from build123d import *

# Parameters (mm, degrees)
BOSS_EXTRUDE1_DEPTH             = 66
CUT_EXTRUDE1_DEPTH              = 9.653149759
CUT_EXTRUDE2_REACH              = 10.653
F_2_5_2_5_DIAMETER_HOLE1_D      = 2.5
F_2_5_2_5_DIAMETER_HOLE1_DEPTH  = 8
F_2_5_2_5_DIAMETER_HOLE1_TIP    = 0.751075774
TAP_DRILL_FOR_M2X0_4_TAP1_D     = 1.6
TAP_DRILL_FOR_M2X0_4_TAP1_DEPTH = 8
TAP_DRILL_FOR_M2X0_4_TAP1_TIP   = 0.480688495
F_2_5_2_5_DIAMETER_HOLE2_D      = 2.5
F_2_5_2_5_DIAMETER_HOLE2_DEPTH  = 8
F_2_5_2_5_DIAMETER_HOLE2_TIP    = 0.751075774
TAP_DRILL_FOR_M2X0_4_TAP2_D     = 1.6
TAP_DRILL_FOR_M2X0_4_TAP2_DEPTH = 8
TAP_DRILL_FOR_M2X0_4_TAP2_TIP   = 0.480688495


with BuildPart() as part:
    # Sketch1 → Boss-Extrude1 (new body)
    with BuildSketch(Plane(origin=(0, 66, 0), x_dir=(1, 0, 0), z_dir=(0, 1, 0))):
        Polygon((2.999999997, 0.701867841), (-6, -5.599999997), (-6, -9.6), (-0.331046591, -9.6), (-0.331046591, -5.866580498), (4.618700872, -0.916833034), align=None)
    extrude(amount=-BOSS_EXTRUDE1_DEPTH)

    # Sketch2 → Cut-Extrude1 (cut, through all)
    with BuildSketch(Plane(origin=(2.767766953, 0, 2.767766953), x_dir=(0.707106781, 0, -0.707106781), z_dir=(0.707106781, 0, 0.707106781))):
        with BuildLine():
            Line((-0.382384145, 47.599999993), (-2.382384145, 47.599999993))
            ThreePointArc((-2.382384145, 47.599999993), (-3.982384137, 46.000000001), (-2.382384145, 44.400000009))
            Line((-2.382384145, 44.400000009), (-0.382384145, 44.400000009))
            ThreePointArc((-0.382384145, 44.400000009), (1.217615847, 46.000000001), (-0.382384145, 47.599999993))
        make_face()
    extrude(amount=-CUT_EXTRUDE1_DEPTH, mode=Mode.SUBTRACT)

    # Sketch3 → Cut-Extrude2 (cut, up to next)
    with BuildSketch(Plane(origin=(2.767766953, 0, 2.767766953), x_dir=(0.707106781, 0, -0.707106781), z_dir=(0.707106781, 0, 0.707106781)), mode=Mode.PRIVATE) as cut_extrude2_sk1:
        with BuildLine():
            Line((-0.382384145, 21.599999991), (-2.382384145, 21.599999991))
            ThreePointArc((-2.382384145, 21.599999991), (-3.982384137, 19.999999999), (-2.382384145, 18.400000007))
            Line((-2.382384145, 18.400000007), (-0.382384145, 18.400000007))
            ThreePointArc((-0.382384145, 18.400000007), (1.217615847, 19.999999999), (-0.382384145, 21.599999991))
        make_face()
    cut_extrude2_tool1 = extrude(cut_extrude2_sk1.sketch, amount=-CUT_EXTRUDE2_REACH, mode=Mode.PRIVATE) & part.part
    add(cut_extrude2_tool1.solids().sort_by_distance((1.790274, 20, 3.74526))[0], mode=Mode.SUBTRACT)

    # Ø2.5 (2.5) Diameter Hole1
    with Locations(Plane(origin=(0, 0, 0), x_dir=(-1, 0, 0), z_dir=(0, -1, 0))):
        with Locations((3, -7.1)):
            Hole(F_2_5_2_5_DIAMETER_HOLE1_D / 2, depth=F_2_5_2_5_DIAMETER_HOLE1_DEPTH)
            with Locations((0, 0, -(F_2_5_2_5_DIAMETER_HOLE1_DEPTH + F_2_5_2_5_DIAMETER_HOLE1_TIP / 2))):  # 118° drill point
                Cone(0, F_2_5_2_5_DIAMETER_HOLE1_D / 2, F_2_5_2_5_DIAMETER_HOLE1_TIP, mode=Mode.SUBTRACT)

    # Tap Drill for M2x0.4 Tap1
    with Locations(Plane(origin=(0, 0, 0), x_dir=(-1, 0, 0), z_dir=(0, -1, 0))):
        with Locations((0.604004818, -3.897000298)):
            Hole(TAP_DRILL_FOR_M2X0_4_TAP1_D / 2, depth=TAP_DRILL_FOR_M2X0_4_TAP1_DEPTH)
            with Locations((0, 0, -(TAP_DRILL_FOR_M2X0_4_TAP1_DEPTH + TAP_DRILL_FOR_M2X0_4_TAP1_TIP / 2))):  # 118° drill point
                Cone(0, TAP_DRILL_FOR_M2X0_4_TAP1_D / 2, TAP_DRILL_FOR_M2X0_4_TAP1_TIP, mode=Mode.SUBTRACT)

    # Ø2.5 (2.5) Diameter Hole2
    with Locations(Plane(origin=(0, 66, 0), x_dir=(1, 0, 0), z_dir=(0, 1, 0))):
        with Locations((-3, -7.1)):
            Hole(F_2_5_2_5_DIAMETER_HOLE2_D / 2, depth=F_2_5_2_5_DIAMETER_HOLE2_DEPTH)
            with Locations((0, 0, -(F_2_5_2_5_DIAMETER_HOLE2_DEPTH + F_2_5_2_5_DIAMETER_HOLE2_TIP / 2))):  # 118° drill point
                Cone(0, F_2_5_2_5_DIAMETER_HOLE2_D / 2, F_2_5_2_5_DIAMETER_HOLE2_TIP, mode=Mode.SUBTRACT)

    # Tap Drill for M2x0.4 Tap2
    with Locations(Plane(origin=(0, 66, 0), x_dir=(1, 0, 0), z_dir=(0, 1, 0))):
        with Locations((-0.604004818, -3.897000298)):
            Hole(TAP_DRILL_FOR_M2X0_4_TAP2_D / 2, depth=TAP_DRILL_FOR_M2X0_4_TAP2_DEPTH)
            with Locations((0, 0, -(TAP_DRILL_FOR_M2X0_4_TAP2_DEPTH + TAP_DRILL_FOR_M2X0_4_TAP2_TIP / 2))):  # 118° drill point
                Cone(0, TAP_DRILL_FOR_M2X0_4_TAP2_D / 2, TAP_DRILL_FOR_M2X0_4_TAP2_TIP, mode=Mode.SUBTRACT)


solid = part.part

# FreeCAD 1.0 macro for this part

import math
import FreeCAD as App
import Part
import Sketcher
Q = App.Units.Quantity

doc = App.newDocument("Part")
body = doc.addObject("PartDesign::Body", "Body")

# Sketch on XZ plane
sketch1 = body.newObject("Sketcher::SketchObject", "Sketch")
sketch1.AttachmentSupport = (doc.getObject("XZ_Plane"), [""])
sketch1.MapMode = "FlatFace"
sketch1.AttachmentOffset = App.Placement(App.Vector(0, 0, -66), App.Rotation())
sketch1.addGeometry([
    Part.LineSegment(App.Vector(3, -0.701868, 0), App.Vector(-6, 5.6, 0)),  # 0
    Part.LineSegment(App.Vector(-6, 5.6, 0), App.Vector(-6, 9.6, 0)),  # 1
    Part.LineSegment(App.Vector(-6, 9.6, 0), App.Vector(-0.331047, 9.6, 0)),  # 2
    Part.LineSegment(App.Vector(-0.331047, 9.6, 0), App.Vector(-0.331047, 5.86658, 0)),  # 3
    Part.LineSegment(App.Vector(-0.331047, 5.86658, 0), App.Vector(4.618701, 0.916833, 0)),  # 4
    Part.LineSegment(App.Vector(4.618701, 0.916833, 0), App.Vector(3, -0.701868, 0)),  # 5
], False)
sketch1.addConstraint([
    Sketcher.Constraint("Coincident", 0, 2, 1, 1),
    Sketcher.Constraint("Coincident", 1, 2, 2, 1),
    Sketcher.Constraint("Coincident", 2, 2, 3, 1),
    Sketcher.Constraint("Coincident", 3, 2, 4, 1),
    Sketcher.Constraint("Coincident", 4, 2, 5, 1),
    Sketcher.Constraint("Coincident", 5, 2, 0, 1),
    Sketcher.Constraint("Vertical", 1),
    Sketcher.Constraint("Horizontal", 2),
    Sketcher.Constraint("Vertical", 3),
    Sketcher.Constraint("Perpendicular", 4, 5),
    Sketcher.Constraint("DistanceY", 1, 1, 1, 2, 4.0),
    Sketcher.Constraint("Angle", 0, Q("145 deg")),
    Sketcher.Constraint("Angle", 4, Q("-45 deg")),
    Sketcher.Constraint("Distance", 4, 7.0),
    Sketcher.Constraint("DistanceX", 0, 2, -1, 1, 6.0),
    Sketcher.Constraint("DistanceX", -1, 1, 5, 2, 3.0),
    Sketcher.Constraint("DistanceY", -1, 1, 0, 2, 5.6),
    Sketcher.Constraint("DistanceY", 3, 2, 3, 1, 3.73342),
])
pad1 = body.newObject("PartDesign::Pad", "Pad")
pad1.Profile = sketch1
pad1.Length = 66

# Sketch on an angled plane
sketch2 = body.newObject("Sketcher::SketchObject", "Sketch001")
sketch2.Placement = App.Placement(App.Vector(2.767767, 0, 2.767767), App.Rotation(App.Vector(0.707106781, 0, -0.707106781), App.Vector(0, 0.999999999, 0), App.Vector(0.707106781, 0, 0.707106781), "ZXY"))
sketch2.addGeometry([
    Part.LineSegment(App.Vector(-0.382384, 47.6, 0), App.Vector(-2.382384, 47.6, 0)),
    Part.ArcOfCircle(Part.Circle(App.Vector(-2.382384, 46, 0), App.Vector(0, 0, 1), 1.6), math.radians(90), math.radians(270)),
    Part.LineSegment(App.Vector(-2.382384, 44.4, 0), App.Vector(-0.382384, 44.4, 0)),
    Part.ArcOfCircle(Part.Circle(App.Vector(-0.382384, 46, 0), App.Vector(0, 0, 1), 1.6), math.radians(-90), math.radians(90)),
], False)
sketch2.addConstraint([
    Sketcher.Constraint("Tangent", 0, 2, 1, 1),
    Sketcher.Constraint("Tangent", 1, 2, 2, 1),
    Sketcher.Constraint("Tangent", 2, 2, 3, 1),
    Sketcher.Constraint("Tangent", 3, 2, 0, 1),
    Sketcher.Constraint("Horizontal", 0),
    Sketcher.Constraint("Horizontal", 2),
    Sketcher.Constraint("Radius", 1, 1.6),
    Sketcher.Constraint("DistanceX", 0, 2, 0, 1, 2.0),
    Sketcher.Constraint("DistanceY", -1, 1, 1, 3, 46.0),
    Sketcher.Constraint("DistanceX", 1, 3, -1, 1, 2.382384),
])
pocket1 = body.newObject("PartDesign::Pocket", "Pocket")
pocket1.Profile = sketch2
pocket1.Type = "ThroughAll"

# Sketch on an angled plane
sketch3 = body.newObject("Sketcher::SketchObject", "Sketch002")
sketch3.Placement = App.Placement(App.Vector(2.767767, 0, 2.767767), App.Rotation(App.Vector(0.707106781, 0, -0.707106781), App.Vector(0, 0.999999999, 0), App.Vector(0.707106781, 0, 0.707106781), "ZXY"))
sketch3.addGeometry([
    Part.LineSegment(App.Vector(-0.382384, 21.6, 0), App.Vector(-2.382384, 21.6, 0)),
    Part.ArcOfCircle(Part.Circle(App.Vector(-2.382384, 20, 0), App.Vector(0, 0, 1), 1.6), math.radians(90), math.radians(270)),
    Part.LineSegment(App.Vector(-2.382384, 18.4, 0), App.Vector(-0.382384, 18.4, 0)),
    Part.ArcOfCircle(Part.Circle(App.Vector(-0.382384, 20, 0), App.Vector(0, 0, 1), 1.6), math.radians(-90), math.radians(90)),
], False)
sketch3.addConstraint([
    Sketcher.Constraint("Tangent", 0, 2, 1, 1),
    Sketcher.Constraint("Tangent", 1, 2, 2, 1),
    Sketcher.Constraint("Tangent", 2, 2, 3, 1),
    Sketcher.Constraint("Tangent", 3, 2, 0, 1),
    Sketcher.Constraint("Horizontal", 0),
    Sketcher.Constraint("Horizontal", 2),
    Sketcher.Constraint("Radius", 1, 1.6),
    Sketcher.Constraint("DistanceX", 0, 2, 0, 1, 2.0),
    Sketcher.Constraint("DistanceY", -1, 1, 1, 3, 20.0),
    Sketcher.Constraint("DistanceX", 1, 3, -1, 1, 2.382384),
])
pocket2 = body.newObject("PartDesign::Pocket", "Pocket001")
pocket2.Profile = sketch3
pocket2.Type = "UpToFirst"

# Sketch on XZ plane
sketch4 = body.newObject("Sketcher::SketchObject", "Sketch003")
sketch4.AttachmentSupport = (doc.getObject("XZ_Plane"), [""])
sketch4.MapMode = "FlatFace"
sketch4.addGeometry(Part.Circle(App.Vector(-3, 7.1, 0), App.Vector(0, 0, 1), 1.25), False)
sketch4.addConstraint([
    Sketcher.Constraint("Diameter", 0, 2.5),
    Sketcher.Constraint("DistanceX", 0, 3, -1, 1, 3.0),
    Sketcher.Constraint("DistanceY", -1, 1, 0, 3, 7.1),
])
doc.recompute()
hole = body.newObject("PartDesign::Hole", "Hole")
hole.Profile = sketch4
hole.ThreadType = "None"
hole.Diameter = 2.5
hole.DepthType = "Dimension"
hole.Depth = 8
hole.DrillPoint = "Angled"
hole.DrillPointAngle = 118

# Sketch on XZ plane
sketch5 = body.newObject("Sketcher::SketchObject", "Sketch004")
sketch5.AttachmentSupport = (doc.getObject("XZ_Plane"), [""])
sketch5.MapMode = "FlatFace"
sketch5.addGeometry(Part.Circle(App.Vector(-0.604005, 3.897, 0), App.Vector(0, 0, 1), 0.8), False)
sketch5.addConstraint([
    Sketcher.Constraint("Diameter", 0, 1.6),
    Sketcher.Constraint("DistanceY", -1, 1, 0, 3, 3.897),
    Sketcher.Constraint("DistanceX", 0, 3, -1, 1, 0.604005),
])
doc.recompute()
hole2 = body.newObject("PartDesign::Hole", "Hole001")
hole2.Profile = sketch5
hole2.ThreadType = "None"
hole2.Diameter = 1.6
hole2.DepthType = "Dimension"
hole2.Depth = 8
hole2.DrillPoint = "Angled"
hole2.DrillPointAngle = 118

# Sketch on XZ plane
sketch6 = body.newObject("Sketcher::SketchObject", "Sketch005")
sketch6.AttachmentSupport = (doc.getObject("XZ_Plane"), [""])
sketch6.MapMode = "FlatFace"
sketch6.AttachmentOffset = App.Placement(App.Vector(0, 0, -66), App.Rotation())
sketch6.addGeometry(Part.Circle(App.Vector(-3, 7.1, 0), App.Vector(0, 0, 1), 1.25), False)
sketch6.addConstraint([
    Sketcher.Constraint("Diameter", 0, 2.5),
    Sketcher.Constraint("DistanceX", 0, 3, -1, 1, 3.0),
    Sketcher.Constraint("DistanceY", -1, 1, 0, 3, 7.1),
])
doc.recompute()
hole3 = body.newObject("PartDesign::Hole", "Hole002")
hole3.Profile = sketch6
hole3.ThreadType = "None"
hole3.Diameter = 2.5
hole3.DepthType = "Dimension"
hole3.Depth = 8
hole3.DrillPoint = "Angled"
hole3.DrillPointAngle = 118
hole3.Reversed = True

# Sketch on XZ plane
sketch7 = body.newObject("Sketcher::SketchObject", "Sketch006")
sketch7.AttachmentSupport = (doc.getObject("XZ_Plane"), [""])
sketch7.MapMode = "FlatFace"
sketch7.AttachmentOffset = App.Placement(App.Vector(0, 0, -66), App.Rotation())
sketch7.addGeometry(Part.Circle(App.Vector(-0.604005, 3.897, 0), App.Vector(0, 0, 1), 0.8), False)
sketch7.addConstraint([
    Sketcher.Constraint("Diameter", 0, 1.6),
    Sketcher.Constraint("DistanceY", -1, 1, 0, 3, 3.897),
    Sketcher.Constraint("DistanceX", 0, 3, -1, 1, 0.604005),
])
doc.recompute()
hole4 = body.newObject("PartDesign::Hole", "Hole003")
hole4.Profile = sketch7
hole4.ThreadType = "None"
hole4.Diameter = 1.6
hole4.DepthType = "Dimension"
hole4.Depth = 8
hole4.DrillPoint = "Angled"
hole4.DrillPointAngle = 118
hole4.Reversed = True

doc.recompute()
